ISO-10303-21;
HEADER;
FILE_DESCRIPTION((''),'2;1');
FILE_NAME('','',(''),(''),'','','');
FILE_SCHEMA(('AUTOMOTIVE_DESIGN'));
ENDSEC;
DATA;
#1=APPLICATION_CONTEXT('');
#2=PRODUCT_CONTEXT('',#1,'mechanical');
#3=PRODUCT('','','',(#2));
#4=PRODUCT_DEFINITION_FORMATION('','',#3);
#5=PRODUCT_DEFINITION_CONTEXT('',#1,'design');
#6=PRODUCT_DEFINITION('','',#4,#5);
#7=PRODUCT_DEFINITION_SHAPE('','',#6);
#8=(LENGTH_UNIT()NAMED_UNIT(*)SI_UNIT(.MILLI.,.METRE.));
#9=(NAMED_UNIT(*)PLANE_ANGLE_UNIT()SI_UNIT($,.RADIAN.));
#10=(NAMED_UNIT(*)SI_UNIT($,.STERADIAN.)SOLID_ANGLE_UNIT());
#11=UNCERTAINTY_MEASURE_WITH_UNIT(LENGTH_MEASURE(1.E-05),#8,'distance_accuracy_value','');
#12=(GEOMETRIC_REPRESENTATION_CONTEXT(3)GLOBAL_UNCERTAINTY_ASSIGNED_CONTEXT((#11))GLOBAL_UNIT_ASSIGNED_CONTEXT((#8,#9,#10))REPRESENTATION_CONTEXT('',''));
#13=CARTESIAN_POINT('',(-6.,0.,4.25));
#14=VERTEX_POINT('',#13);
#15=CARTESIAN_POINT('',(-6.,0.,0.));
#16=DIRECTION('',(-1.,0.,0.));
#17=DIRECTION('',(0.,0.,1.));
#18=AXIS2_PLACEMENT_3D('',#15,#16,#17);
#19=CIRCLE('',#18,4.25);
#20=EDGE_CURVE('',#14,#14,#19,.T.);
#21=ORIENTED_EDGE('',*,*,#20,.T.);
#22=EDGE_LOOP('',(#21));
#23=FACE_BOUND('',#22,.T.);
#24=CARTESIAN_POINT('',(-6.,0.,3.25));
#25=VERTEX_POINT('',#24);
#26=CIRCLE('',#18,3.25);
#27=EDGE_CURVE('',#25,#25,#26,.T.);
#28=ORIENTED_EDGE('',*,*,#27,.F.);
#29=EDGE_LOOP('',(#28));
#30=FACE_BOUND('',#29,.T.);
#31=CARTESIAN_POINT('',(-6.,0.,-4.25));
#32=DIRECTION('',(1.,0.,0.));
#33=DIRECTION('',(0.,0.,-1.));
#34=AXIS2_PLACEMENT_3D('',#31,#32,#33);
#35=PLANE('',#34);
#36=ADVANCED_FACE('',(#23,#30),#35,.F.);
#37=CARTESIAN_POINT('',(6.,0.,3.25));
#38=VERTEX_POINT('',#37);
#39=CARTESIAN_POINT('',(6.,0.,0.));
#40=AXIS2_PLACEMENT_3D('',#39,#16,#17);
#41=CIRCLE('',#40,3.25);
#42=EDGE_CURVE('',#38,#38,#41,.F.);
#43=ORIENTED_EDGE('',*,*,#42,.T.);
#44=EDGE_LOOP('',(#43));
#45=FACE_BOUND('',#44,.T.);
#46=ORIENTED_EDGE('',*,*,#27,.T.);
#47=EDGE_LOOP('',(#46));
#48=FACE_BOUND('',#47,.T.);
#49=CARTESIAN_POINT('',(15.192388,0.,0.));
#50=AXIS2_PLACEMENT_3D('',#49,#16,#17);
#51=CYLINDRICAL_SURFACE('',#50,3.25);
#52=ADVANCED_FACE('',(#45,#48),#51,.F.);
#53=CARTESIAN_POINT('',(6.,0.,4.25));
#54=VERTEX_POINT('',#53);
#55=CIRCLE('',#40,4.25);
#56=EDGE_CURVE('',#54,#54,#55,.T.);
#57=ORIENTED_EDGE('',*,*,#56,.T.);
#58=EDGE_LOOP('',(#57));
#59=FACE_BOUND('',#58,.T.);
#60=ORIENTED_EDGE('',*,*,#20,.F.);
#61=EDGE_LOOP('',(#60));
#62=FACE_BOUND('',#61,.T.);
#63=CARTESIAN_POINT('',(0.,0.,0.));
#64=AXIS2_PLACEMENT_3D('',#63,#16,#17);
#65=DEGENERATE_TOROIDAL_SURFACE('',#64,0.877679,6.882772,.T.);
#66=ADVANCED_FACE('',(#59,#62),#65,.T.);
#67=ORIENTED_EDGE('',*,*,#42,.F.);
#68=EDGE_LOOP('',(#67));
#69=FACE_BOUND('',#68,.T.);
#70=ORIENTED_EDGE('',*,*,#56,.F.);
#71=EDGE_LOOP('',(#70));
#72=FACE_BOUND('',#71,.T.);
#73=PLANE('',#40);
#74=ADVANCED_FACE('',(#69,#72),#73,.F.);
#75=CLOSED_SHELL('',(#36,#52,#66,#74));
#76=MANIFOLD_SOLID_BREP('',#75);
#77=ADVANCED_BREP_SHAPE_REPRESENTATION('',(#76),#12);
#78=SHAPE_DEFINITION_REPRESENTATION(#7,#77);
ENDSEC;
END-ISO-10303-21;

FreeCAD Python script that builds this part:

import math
import FreeCAD as App
import Part
import Sketcher
Q = App.Units.Quantity

doc = App.newDocument("Part")
body = doc.addObject("PartDesign::Body", "Body")

# Sketch on XZ plane
sketch1 = body.newObject("Sketcher::SketchObject", "Sketch")
sketch1.AttachmentSupport = (doc.getObject("XZ_Plane"), [""])
sketch1.MapMode = "FlatFace"
sketch1.addGeometry([
    Part.LineSegment(App.Vector(-6, -4.2, 0), App.Vector(-6, 0, 0)),
    Part.LineSegment(App.Vector(-6, 0, 0), App.Vector(6, 0, 0)),
    Part.LineSegment(App.Vector(6, 0, 0), App.Vector(6, -4.2, 0)),
    Part.ArcOfCircle(Part.Circle(App.Vector(0, -0.9, 0), App.Vector(0, 0, 1), 6.9), math.radians(-151), math.radians(-29)),
], False)
sketch1.addConstraint([
    Sketcher.Constraint("Coincident", 0, 2, 1, 1),
    Sketcher.Constraint("Coincident", 1, 2, 2, 1),
    Sketcher.Constraint("Coincident", 2, 2, 3, 2),
    Sketcher.Constraint("Coincident", 3, 1, 0, 1),
    Sketcher.Constraint("Vertical", 0),
    Sketcher.Constraint("Horizontal", 1),
    Sketcher.Constraint("Vertical", 2),
    Sketcher.Constraint("Symmetric", 0, 2, 1, 2, -1, 1),
    Sketcher.Constraint("PointOnObject", 3, 3, -2),
    Sketcher.Constraint("DistanceX", 1, 1, 1, 2, Q("12 mm")),
    Sketcher.Constraint("DistanceY", 0, 1, 0, 2, Q("4.25 mm")),
    Sketcher.Constraint("Radius", 3, Q("6.882772 mm")),
])
revolution = body.newObject("PartDesign::Revolution", "Revolution")
revolution.Profile = sketch1
revolution.ReferenceAxis = (sketch1, ["H_Axis"])
revolution.Angle = 360

# Sketch on YZ plane
sketch2 = body.newObject("Sketcher::SketchObject", "Sketch001")
sketch2.AttachmentSupport = (doc.getObject("YZ_Plane"), [""])
sketch2.MapMode = "FlatFace"
sketch2.AttachmentOffset = App.Placement(App.Vector(0, 0, -6), App.Rotation())
sketch2.addGeometry(Part.Circle(App.Vector(0, 0, 0), App.Vector(0, 0, 1), 3.2), False)
sketch2.addConstraint([
    Sketcher.Constraint("Coincident", 0, 3, -1, 1),
    Sketcher.Constraint("Diameter", 0, Q("6.5 mm")),
])
pocket1 = body.newObject("PartDesign::Pocket", "Pocket")
pocket1.Profile = sketch2
pocket1.Length = 12
pocket1.Reversed = True

doc.recompute()
